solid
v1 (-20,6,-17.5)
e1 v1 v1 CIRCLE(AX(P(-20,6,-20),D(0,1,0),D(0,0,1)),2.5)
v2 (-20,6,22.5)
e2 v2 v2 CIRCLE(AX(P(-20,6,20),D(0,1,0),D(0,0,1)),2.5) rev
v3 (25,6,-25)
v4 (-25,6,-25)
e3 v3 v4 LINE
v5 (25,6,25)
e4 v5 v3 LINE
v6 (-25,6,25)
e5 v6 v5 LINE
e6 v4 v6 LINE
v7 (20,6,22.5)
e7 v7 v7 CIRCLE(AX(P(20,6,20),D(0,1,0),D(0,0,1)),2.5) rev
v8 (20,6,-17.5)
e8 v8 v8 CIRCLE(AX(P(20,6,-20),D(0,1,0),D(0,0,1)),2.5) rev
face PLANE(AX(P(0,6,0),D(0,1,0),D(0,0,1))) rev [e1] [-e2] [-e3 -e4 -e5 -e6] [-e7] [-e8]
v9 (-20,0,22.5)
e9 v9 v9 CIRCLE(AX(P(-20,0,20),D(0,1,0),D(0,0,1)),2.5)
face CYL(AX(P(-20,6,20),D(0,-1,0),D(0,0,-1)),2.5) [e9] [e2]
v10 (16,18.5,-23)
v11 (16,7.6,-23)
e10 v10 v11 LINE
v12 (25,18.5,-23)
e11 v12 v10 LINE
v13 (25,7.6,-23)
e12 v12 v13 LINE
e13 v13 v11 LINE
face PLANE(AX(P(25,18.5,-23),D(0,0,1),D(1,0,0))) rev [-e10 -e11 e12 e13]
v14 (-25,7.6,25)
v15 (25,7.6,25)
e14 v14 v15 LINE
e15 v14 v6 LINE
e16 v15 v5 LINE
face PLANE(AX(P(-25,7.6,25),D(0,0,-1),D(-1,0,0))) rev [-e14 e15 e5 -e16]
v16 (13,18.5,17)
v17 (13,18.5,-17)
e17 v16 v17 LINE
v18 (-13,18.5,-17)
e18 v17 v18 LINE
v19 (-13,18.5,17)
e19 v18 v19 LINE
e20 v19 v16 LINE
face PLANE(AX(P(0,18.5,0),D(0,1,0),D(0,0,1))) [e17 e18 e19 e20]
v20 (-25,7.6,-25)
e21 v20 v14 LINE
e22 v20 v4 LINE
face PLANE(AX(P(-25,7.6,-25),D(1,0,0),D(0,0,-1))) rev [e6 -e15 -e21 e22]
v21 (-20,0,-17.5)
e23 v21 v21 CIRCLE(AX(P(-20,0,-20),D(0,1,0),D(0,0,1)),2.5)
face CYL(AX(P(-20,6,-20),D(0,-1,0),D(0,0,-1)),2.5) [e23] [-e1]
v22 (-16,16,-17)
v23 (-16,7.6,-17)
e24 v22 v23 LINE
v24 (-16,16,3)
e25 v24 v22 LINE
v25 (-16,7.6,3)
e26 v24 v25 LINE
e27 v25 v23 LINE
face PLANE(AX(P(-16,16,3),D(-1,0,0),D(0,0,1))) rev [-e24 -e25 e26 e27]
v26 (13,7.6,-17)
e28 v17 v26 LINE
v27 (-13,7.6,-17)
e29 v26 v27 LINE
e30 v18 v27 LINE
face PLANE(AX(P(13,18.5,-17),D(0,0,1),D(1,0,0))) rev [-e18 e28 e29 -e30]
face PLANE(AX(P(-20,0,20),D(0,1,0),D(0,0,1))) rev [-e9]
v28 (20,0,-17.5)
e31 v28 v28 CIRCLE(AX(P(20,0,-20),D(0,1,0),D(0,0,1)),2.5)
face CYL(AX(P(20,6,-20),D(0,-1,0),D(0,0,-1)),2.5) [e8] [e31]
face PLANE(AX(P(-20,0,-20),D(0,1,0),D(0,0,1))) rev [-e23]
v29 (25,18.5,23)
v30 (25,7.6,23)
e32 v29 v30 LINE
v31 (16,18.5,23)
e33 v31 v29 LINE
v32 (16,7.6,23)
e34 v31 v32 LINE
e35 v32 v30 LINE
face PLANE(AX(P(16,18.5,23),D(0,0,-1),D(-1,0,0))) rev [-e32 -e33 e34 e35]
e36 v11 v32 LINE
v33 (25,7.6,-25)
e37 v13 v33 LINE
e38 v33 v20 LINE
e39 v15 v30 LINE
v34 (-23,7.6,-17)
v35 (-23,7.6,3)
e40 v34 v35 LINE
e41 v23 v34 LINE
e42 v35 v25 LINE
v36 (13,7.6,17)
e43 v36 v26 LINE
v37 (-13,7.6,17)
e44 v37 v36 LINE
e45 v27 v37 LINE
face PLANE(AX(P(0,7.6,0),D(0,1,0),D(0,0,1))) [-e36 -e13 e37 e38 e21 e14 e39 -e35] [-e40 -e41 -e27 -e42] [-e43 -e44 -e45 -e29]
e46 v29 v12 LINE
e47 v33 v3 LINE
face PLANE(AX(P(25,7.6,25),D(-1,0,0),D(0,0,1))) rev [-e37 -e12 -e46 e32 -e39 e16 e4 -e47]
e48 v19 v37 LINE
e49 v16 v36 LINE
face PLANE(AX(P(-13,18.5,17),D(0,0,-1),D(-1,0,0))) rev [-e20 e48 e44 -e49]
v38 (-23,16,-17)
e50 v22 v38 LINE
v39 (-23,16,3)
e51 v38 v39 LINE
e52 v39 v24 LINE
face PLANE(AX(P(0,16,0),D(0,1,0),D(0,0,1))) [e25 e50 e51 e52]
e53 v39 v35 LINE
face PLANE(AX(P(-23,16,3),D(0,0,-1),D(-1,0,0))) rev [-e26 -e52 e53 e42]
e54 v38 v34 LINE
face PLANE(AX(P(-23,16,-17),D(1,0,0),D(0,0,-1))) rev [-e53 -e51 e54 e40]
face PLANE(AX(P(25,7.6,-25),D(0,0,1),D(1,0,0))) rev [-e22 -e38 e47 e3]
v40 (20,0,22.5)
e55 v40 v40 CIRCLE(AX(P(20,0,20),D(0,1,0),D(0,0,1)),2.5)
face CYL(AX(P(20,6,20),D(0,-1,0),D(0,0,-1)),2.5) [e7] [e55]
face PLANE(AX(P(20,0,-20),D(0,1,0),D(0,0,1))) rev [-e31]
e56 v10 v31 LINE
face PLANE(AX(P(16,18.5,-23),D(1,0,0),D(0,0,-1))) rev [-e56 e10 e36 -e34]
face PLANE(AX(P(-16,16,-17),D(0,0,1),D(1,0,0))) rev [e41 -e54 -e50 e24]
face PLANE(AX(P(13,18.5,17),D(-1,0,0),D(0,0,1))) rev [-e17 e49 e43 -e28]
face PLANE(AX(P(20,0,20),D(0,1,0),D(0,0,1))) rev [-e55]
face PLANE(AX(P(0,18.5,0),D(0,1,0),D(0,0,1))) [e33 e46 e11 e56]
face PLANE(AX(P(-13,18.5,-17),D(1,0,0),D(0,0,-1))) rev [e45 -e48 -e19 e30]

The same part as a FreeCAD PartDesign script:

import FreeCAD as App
import Part
import Sketcher
from FreeCAD import Vector
Q = App.Units.Quantity

doc = App.newDocument("Part")
body = doc.addObject("PartDesign::Body", "Body")

# Sketch on XZ plane
sketch1 = body.newObject("Sketcher::SketchObject", "Sketch")
sketch1.AttachmentSupport = (doc.getObject("XZ_Plane"), [""])
sketch1.MapMode = "FlatFace"
sketch1.addGeometry(Part.Circle(Vector(-20, -20, 0), Vector(0, 0, 1), 2.5), False)
sketch1.addConstraint(Sketcher.Constraint("Diameter", 0, Q("5 mm")))
sketch1.addConstraint(Sketcher.Constraint("DistanceX", 0, 3, -1, 1, Q("20 mm")))
sketch1.addConstraint(Sketcher.Constraint("DistanceY", 0, 3, -1, 1, Q("20 mm")))
pad1 = body.newObject("PartDesign::Pad", "Pad")
pad1.Profile = sketch1
pad1.Length = 6
pad1.Reversed = True
body2 = doc.addObject("PartDesign::Body", "Body001")

# Sketch on XZ plane
sketch2 = body2.newObject("Sketcher::SketchObject", "Sketch001")
sketch2.AttachmentSupport = (doc.getObject("XZ_Plane001"), [""])
sketch2.MapMode = "FlatFace"
sketch2.addGeometry(Part.Circle(Vector(20, -20, 0), Vector(0, 0, 1), 2.5), False)
sketch2.addConstraint(Sketcher.Constraint("Diameter", 0, Q("5 mm")))
sketch2.addConstraint(Sketcher.Constraint("DistanceX", -1, 1, 0, 3, Q("20 mm")))
sketch2.addConstraint(Sketcher.Constraint("DistanceY", 0, 3, -1, 1, Q("20 mm")))
pad2 = body2.newObject("PartDesign::Pad", "Pad001")
pad2.Profile = sketch2
pad2.Length = 6
pad2.Reversed = True
body3 = doc.addObject("PartDesign::Body", "Body002")

# Sketch on XZ plane
sketch3 = body3.newObject("Sketcher::SketchObject", "Sketch002")
sketch3.AttachmentSupport = (doc.getObject("XZ_Plane002"), [""])
sketch3.MapMode = "FlatFace"
sketch3.addGeometry(Part.Circle(Vector(-20, 20, 0), Vector(0, 0, 1), 2.5), False)
sketch3.addConstraint(Sketcher.Constraint("Diameter", 0, Q("5 mm")))
sketch3.addConstraint(Sketcher.Constraint("DistanceX", 0, 3, -1, 1, Q("20 mm")))
sketch3.addConstraint(Sketcher.Constraint("DistanceY", -1, 1, 0, 3, Q("20 mm")))
pad3 = body3.newObject("PartDesign::Pad", "Pad002")
pad3.Profile = sketch3
pad3.Length = 6
pad3.Reversed = True
body4 = doc.addObject("PartDesign::Body", "Body003")

# Sketch on XZ plane
sketch4 = body4.newObject("Sketcher::SketchObject", "Sketch003")
sketch4.AttachmentSupport = (doc.getObject("XZ_Plane003"), [""])
sketch4.MapMode = "FlatFace"
sketch4.addGeometry(Part.Circle(Vector(20, 20, 0), Vector(0, 0, 1), 2.5), False)
sketch4.addConstraint(Sketcher.Constraint("Diameter", 0, Q("5 mm")))
sketch4.addConstraint(Sketcher.Constraint("DistanceX", -1, 1, 0, 3, Q("20 mm")))
sketch4.addConstraint(Sketcher.Constraint("DistanceY", -1, 1, 0, 3, Q("20 mm")))
pad4 = body4.newObject("PartDesign::Pad", "Pad003")
pad4.Profile = sketch4
pad4.Length = 6
pad4.Reversed = True
body.AllowCompound = True
doc.recompute()

boolean = body.newObject("PartDesign::Boolean", "Boolean")
boolean.Type = "Fuse"
boolean.addObjects([body2])
doc.recompute()

boolean2 = body.newObject("PartDesign::Boolean", "Boolean001")
boolean2.Type = "Fuse"
boolean2.addObjects([body3])
doc.recompute()

boolean3 = body.newObject("PartDesign::Boolean", "Boolean002")
boolean3.Type = "Fuse"
boolean3.addObjects([body4])

# Sketch on XZ plane
sketch5 = body.newObject("Sketcher::SketchObject", "Sketch004")
sketch5.AttachmentSupport = (doc.getObject("XZ_Plane"), [""])
sketch5.MapMode = "FlatFace"
sketch5.AttachmentOffset = App.Placement(Vector(0, 0, -6), App.Rotation())
sketch5.addGeometry(Part.LineSegment(Vector(-25, -25, 0), Vector(-25, 25, 0)), False)
sketch5.addGeometry(Part.LineSegment(Vector(-25, 25, 0), Vector(25, 25, 0)), False)
sketch5.addGeometry(Part.LineSegment(Vector(25, 25, 0), Vector(25, -25, 0)), False)
sketch5.addGeometry(Part.LineSegment(Vector(25, -25, 0), Vector(-25, -25, 0)), False)
sketch5.addConstraint(Sketcher.Constraint("Coincident", 0, 2, 1, 1))
sketch5.addConstraint(Sketcher.Constraint("Coincident", 1, 2, 2, 1))
sketch5.addConstraint(Sketcher.Constraint("Coincident", 2, 2, 3, 1))
sketch5.addConstraint(Sketcher.Constraint("Coincident", 3, 2, 0, 1))
sketch5.addConstraint(Sketcher.Constraint("Vertical", 0))
sketch5.addConstraint(Sketcher.Constraint("Horizontal", 1))
sketch5.addConstraint(Sketcher.Constraint("Vertical", 2))
sketch5.addConstraint(Sketcher.Constraint("Horizontal", 3))
sketch5.addConstraint(Sketcher.Constraint("Symmetric", 0, 2, 2, 2, -1, 1))
sketch5.addConstraint(Sketcher.Constraint("Equal", 3, 0))
sketch5.addConstraint(Sketcher.Constraint("DistanceX", 1, 1, 1, 2, Q("50 mm")))
pad5 = body.newObject("PartDesign::Pad", "Pad004")
pad5.Profile = sketch5
pad5.Length = 1.6
pad5.Reversed = True

# Sketch on XZ plane
sketch6 = body.newObject("Sketcher::SketchObject", "Sketch005")
sketch6.AttachmentSupport = (doc.getObject("XZ_Plane"), [""])
sketch6.MapMode = "FlatFace"
sketch6.AttachmentOffset = App.Placement(Vector(0, 0, -7.6), App.Rotation())
sketch6.addGeometry(Part.LineSegment(Vector(-13, -17, 0), Vector(-13, 17, 0)), False)
sketch6.addGeometry(Part.LineSegment(Vector(-13, 17, 0), Vector(13, 17, 0)), False)
sketch6.addGeometry(Part.LineSegment(Vector(13, 17, 0), Vector(13, -17, 0)), False)
sketch6.addGeometry(Part.LineSegment(Vector(13, -17, 0), Vector(-13, -17, 0)), False)
sketch6.addConstraint(Sketcher.Constraint("Coincident", 0, 2, 1, 1))
sketch6.addConstraint(Sketcher.Constraint("Coincident", 1, 2, 2, 1))
sketch6.addConstraint(Sketcher.Constraint("Coincident", 2, 2, 3, 1))
sketch6.addConstraint(Sketcher.Constraint("Coincident", 3, 2, 0, 1))
sketch6.addConstraint(Sketcher.Constraint("Vertical", 0))
sketch6.addConstraint(Sketcher.Constraint("Horizontal", 1))
sketch6.addConstraint(Sketcher.Constraint("Vertical", 2))
sketch6.addConstraint(Sketcher.Constraint("Horizontal", 3))
sketch6.addConstraint(Sketcher.Constraint("Symmetric", 0, 2, 2, 2, -1, 1))
sketch6.addConstraint(Sketcher.Constraint("DistanceX", 1, 1, 1, 2, Q("26 mm")))
sketch6.addConstraint(Sketcher.Constraint("DistanceY", 0, 1, 0, 2, Q("34 mm")))
pad6 = body.newObject("PartDesign::Pad", "Pad005")
pad6.Profile = sketch6
pad6.Length = 10.9
pad6.Reversed = True

# Sketch on XZ plane
sketch7 = body.newObject("Sketcher::SketchObject", "Sketch006")
sketch7.AttachmentSupport = (doc.getObject("XZ_Plane"), [""])
sketch7.MapMode = "FlatFace"
sketch7.AttachmentOffset = App.Placement(Vector(0, 0, -7.6), App.Rotation())
sketch7.addGeometry(Part.LineSegment(Vector(16, -23, 0), Vector(16, 23, 0)), False)
sketch7.addGeometry(Part.LineSegment(Vector(16, 23, 0), Vector(25, 23, 0)), False)
sketch7.addGeometry(Part.LineSegment(Vector(25, 23, 0), Vector(25, -23, 0)), False)
sketch7.addGeometry(Part.LineSegment(Vector(25, -23, 0), Vector(16, -23, 0)), False)
sketch7.addConstraint(Sketcher.Constraint("Coincident", 0, 2, 1, 1))
sketch7.addConstraint(Sketcher.Constraint("Coincident", 1, 2, 2, 1))
sketch7.addConstraint(Sketcher.Constraint("Coincident", 2, 2, 3, 1))
sketch7.addConstraint(Sketcher.Constraint("Coincident", 3, 2, 0, 1))
sketch7.addConstraint(Sketcher.Constraint("Vertical", 0))
sketch7.addConstraint(Sketcher.Constraint("Horizontal", 1))
sketch7.addConstraint(Sketcher.Constraint("Vertical", 2))
sketch7.addConstraint(Sketcher.Constraint("Horizontal", 3))
sketch7.addConstraint(Sketcher.Constraint("DistanceX", 1, 1, 1, 2, Q("9 mm")))
sketch7.addConstraint(Sketcher.Constraint("DistanceY", 0, 1, 0, 2, Q("46 mm")))
sketch7.addConstraint(Sketcher.Constraint("DistanceX", -1, 1, 0, 2, Q("16 mm")))
sketch7.addConstraint(Sketcher.Constraint("DistanceY", -1, 1, 0, 2, Q("23 mm")))
pad7 = body.newObject("PartDesign::Pad", "Pad006")
pad7.Profile = sketch7
pad7.Length = 10.9
pad7.Reversed = True

# Sketch on XZ plane
sketch8 = body.newObject("Sketcher::SketchObject", "Sketch007")
sketch8.AttachmentSupport = (doc.getObject("XZ_Plane"), [""])
sketch8.MapMode = "FlatFace"
sketch8.AttachmentOffset = App.Placement(Vector(0, 0, -7.6), App.Rotation())
sketch8.addGeometry(Part.LineSegment(Vector(-23, -17, 0), Vector(-23, 3, 0)), False)
sketch8.addGeometry(Part.LineSegment(Vector(-23, 3, 0), Vector(-16, 3, 0)), False)
sketch8.addGeometry(Part.LineSegment(Vector(-16, 3, 0), Vector(-16, -17, 0)), False)
sketch8.addGeometry(Part.LineSegment(Vector(-16, -17, 0), Vector(-23, -17, 0)), False)
sketch8.addConstraint(Sketcher.Constraint("Coincident", 0, 2, 1, 1))
sketch8.addConstraint(Sketcher.Constraint("Coincident", 1, 2, 2, 1))
sketch8.addConstraint(Sketcher.Constraint("Coincident", 2, 2, 3, 1))
sketch8.addConstraint(Sketcher.Constraint("Coincident", 3, 2, 0, 1))
sketch8.addConstraint(Sketcher.Constraint("Vertical", 0))
sketch8.addConstraint(Sketcher.Constraint("Horizontal", 1))
sketch8.addConstraint(Sketcher.Constraint("Vertical", 2))
sketch8.addConstraint(Sketcher.Constraint("Horizontal", 3))
sketch8.addConstraint(Sketcher.Constraint("DistanceX", 1, 1, 1, 2, Q("7 mm")))
sketch8.addConstraint(Sketcher.Constraint("DistanceY", 0, 1, 0, 2, Q("20 mm")))
sketch8.addConstraint(Sketcher.Constraint("DistanceX", 0, 2, -1, 1, Q("23 mm")))
sketch8.addConstraint(Sketcher.Constraint("DistanceY", -1, 1, 0, 2, Q("3 mm")))
pad8 = body.newObject("PartDesign::Pad", "Pad007")
pad8.Profile = sketch8
pad8.Length = 8.4
pad8.Reversed = True

doc.recompute()
